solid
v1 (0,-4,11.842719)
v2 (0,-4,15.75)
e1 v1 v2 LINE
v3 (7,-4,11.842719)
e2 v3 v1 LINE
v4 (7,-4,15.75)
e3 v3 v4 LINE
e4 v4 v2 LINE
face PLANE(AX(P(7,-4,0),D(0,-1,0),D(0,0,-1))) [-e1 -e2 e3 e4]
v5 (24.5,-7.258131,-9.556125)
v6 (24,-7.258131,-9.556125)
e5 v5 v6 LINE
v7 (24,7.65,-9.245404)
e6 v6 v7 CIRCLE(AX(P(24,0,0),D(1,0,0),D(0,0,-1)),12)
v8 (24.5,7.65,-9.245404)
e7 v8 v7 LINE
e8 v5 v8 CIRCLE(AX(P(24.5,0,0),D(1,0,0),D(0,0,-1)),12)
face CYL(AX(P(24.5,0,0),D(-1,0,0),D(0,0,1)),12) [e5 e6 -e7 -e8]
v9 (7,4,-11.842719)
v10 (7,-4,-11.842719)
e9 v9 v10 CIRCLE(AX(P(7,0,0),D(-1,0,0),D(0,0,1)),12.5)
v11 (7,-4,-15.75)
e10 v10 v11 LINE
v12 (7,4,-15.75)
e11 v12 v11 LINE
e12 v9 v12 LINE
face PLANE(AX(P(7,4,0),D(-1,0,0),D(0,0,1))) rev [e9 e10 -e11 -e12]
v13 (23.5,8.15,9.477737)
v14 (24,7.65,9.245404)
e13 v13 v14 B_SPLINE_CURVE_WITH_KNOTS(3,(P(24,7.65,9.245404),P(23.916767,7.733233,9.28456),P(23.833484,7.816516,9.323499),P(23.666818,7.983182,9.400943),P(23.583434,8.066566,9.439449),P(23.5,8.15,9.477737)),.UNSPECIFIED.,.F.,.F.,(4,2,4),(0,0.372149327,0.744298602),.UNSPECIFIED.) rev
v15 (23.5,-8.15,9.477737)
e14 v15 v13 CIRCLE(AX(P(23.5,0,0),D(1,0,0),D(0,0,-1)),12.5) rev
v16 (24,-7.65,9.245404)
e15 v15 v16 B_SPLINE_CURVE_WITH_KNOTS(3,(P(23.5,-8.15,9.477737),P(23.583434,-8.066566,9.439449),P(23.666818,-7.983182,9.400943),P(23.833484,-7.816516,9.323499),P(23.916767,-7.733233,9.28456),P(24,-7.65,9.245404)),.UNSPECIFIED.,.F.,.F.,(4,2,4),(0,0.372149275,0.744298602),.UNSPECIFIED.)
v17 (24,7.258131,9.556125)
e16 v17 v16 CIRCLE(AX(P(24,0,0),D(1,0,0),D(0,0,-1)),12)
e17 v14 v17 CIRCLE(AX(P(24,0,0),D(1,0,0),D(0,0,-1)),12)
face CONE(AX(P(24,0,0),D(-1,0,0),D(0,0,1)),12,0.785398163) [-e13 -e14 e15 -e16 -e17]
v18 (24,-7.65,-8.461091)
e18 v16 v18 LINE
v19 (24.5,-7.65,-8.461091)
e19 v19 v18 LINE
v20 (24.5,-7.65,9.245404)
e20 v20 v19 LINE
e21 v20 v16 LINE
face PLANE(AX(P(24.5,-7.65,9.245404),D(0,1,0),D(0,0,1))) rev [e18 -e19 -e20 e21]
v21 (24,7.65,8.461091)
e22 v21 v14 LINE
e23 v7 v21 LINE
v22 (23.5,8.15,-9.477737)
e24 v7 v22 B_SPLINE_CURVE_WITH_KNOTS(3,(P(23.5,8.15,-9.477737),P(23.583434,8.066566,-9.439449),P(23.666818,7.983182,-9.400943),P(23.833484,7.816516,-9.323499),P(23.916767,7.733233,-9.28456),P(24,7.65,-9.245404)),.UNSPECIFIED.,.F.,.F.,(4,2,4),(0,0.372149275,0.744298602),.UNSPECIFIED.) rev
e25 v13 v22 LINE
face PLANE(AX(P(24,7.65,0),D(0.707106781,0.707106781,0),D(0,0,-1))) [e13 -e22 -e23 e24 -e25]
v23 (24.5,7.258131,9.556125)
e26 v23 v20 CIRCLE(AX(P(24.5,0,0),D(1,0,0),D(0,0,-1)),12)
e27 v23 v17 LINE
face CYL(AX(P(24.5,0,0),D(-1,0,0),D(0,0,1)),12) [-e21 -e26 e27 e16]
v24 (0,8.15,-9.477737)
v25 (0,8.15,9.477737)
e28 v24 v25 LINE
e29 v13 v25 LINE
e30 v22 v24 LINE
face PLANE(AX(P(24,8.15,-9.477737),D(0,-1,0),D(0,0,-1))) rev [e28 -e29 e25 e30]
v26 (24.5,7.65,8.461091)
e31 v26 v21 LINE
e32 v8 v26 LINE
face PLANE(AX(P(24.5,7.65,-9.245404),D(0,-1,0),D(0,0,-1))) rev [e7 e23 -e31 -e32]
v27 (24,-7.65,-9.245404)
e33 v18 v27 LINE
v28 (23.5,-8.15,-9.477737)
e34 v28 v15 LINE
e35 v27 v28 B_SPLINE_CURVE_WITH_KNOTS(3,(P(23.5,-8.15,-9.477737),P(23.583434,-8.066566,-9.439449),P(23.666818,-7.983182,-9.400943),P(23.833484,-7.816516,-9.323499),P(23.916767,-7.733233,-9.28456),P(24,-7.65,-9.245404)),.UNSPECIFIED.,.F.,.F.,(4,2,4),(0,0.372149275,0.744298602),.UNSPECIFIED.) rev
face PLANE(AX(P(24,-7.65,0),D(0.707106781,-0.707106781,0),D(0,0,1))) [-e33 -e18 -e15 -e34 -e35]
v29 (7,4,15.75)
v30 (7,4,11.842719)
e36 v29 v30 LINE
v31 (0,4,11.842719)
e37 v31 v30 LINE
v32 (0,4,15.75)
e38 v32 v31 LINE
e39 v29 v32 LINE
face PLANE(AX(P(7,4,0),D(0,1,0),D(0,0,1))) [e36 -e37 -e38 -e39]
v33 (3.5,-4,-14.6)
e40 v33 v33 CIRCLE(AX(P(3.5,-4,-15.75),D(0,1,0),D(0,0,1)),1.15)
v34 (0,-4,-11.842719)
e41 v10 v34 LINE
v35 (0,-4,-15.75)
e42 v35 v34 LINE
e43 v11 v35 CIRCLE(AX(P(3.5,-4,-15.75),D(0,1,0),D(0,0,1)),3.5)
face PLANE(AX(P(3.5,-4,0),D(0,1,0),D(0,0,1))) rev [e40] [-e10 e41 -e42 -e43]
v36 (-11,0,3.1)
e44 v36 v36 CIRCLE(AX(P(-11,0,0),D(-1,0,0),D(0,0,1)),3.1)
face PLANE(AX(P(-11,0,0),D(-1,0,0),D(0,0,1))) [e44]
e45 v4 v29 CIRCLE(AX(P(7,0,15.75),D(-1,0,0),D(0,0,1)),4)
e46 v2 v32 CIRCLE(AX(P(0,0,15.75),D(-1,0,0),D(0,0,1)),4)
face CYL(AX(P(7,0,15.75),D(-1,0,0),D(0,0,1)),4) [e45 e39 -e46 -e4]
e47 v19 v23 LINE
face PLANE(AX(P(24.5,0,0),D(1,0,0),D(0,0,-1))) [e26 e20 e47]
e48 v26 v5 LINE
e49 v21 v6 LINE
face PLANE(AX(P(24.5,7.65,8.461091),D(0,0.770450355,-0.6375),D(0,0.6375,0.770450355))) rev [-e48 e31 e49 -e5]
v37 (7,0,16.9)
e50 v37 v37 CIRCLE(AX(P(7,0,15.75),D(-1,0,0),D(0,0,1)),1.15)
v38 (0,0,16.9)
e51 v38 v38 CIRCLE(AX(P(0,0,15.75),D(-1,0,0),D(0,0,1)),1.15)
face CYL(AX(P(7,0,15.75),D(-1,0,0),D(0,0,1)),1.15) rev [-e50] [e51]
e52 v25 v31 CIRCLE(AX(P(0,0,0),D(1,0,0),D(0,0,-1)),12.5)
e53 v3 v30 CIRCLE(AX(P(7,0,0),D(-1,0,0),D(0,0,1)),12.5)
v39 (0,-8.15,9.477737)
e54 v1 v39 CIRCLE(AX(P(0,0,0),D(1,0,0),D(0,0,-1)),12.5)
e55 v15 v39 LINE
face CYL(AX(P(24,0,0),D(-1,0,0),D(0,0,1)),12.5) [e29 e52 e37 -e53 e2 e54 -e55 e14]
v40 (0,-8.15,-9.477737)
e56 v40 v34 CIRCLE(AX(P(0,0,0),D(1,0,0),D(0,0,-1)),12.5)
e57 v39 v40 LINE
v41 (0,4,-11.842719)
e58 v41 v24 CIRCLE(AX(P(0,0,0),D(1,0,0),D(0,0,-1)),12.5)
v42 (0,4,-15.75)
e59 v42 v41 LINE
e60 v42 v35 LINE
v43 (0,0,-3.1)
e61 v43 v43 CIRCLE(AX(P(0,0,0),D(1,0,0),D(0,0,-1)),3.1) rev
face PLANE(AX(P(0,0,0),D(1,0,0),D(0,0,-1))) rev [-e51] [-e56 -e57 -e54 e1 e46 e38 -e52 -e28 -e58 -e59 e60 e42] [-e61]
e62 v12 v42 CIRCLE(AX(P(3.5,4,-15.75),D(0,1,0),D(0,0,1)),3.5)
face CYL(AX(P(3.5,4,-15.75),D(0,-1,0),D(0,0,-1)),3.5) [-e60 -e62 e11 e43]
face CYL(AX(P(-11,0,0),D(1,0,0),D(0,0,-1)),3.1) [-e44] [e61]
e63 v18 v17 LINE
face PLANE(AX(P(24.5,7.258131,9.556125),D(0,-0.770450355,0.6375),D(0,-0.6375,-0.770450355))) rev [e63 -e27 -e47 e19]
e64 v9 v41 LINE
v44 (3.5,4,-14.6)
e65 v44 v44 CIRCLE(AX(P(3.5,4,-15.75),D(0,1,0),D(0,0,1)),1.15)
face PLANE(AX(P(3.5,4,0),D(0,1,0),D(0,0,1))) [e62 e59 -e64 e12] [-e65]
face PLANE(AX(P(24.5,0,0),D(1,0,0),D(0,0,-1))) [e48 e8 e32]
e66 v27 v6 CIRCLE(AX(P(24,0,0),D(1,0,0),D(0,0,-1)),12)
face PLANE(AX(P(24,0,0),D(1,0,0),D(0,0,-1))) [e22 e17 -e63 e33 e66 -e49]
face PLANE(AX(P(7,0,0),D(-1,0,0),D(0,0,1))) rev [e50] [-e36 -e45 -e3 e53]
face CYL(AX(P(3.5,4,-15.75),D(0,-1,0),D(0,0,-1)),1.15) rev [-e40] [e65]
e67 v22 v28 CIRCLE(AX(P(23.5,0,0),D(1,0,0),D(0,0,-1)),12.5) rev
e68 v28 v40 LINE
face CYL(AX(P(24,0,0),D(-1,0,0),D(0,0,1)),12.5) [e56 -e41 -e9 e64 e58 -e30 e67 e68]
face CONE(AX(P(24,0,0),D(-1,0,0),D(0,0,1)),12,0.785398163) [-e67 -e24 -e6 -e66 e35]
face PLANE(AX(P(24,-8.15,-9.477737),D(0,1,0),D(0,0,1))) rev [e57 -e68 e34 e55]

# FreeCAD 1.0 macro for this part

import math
import FreeCAD as App
import Part
import Sketcher
Q = App.Units.Quantity


def edges_at(feature, points):
    """Names of the edges that pass closest to the given points."""
    edges = feature.Shape.Edges
    near = lambda p: min(range(len(edges)), key=lambda i: edges[i].distToShape(Part.Vertex(*p))[0])
    return sorted({f"Edge{near(p) + 1}" for p in points})

doc = App.newDocument("Part")
body = doc.addObject("PartDesign::Body", "Body")

# Sketch on YZ plane
sketch1 = body.newObject("Sketcher::SketchObject", "Sketch")
sketch1.AttachmentSupport = (doc.getObject("YZ_Plane"), [""])
sketch1.MapMode = "FlatFace"
sketch1.addGeometry([
    Part.LineSegment(App.Vector(-8, 9, 0), App.Vector(-8, -9, 0)),
    Part.ArcOfCircle(Part.Circle(App.Vector(0, 0, 0), App.Vector(0, 0, 1), 13), math.radians(-131), math.radians(-49)),
    Part.LineSegment(App.Vector(8, -9, 0), App.Vector(8, 9, 0)),
    Part.ArcOfCircle(Part.Circle(App.Vector(0, 0, 0), App.Vector(0, 0, 1), 13), math.radians(49), math.radians(131)),
], False)
sketch1.addConstraint([
    Sketcher.Constraint("Coincident", 0, 2, 1, 1),
    Sketcher.Constraint("Coincident", 1, 2, 2, 1),
    Sketcher.Constraint("Coincident", 2, 2, 3, 1),
    Sketcher.Constraint("Coincident", 3, 2, 0, 1),
    Sketcher.Constraint("Vertical", 0),
    Sketcher.Constraint("Vertical", 2),
    Sketcher.Constraint("Coincident", 1, 3, -1, 1),
    Sketcher.Constraint("Coincident", 3, 3, -1, 1),
    Sketcher.Constraint("Equal", 1, 3),
    Sketcher.Constraint("Horizontal", 0, 2, 1, 2),
    Sketcher.Constraint("Radius", 1, Q("12.5 mm")),
    Sketcher.Constraint("DistanceX", 0, 2, 1, 2, Q("16.3 mm")),
])
pad1 = body.newObject("PartDesign::Pad", "Pad")
pad1.Profile = sketch1
pad1.Length = 24

# Sketch on YZ plane
sketch2 = body.newObject("Sketcher::SketchObject", "Sketch001")
sketch2.AttachmentSupport = (doc.getObject("YZ_Plane"), [""])
sketch2.MapMode = "FlatFace"
sketch2.addGeometry([
    Part.LineSegment(App.Vector(4, 15.8, 0), App.Vector(4, 0, 0)),  # 0
    Part.ArcOfCircle(Part.Circle(App.Vector(0, 0, 0), App.Vector(0, 0, 1), 4), math.radians(180), math.radians(360)),  # 1
    Part.LineSegment(App.Vector(-4, 0, 0), App.Vector(-4, 15.8, 0)),  # 2
    Part.ArcOfCircle(Part.Circle(App.Vector(0, 15.8, 0), App.Vector(0, 0, 1), 4), math.radians(0), math.radians(180)),  # 3
    Part.Circle(App.Vector(0, 15.8, 0), App.Vector(0, 0, 1), 1.1),  # 4
], False)
sketch2.addConstraint([
    Sketcher.Constraint("Tangent", 0, 2, 1, 2),
    Sketcher.Constraint("Tangent", 1, 1, 2, 1),
    Sketcher.Constraint("Tangent", 2, 2, 3, 2),
    Sketcher.Constraint("Tangent", 3, 1, 0, 1),
    Sketcher.Constraint("Vertical", 0),
    Sketcher.Constraint("Vertical", 2),
    Sketcher.Constraint("Coincident", 1, 3, -1, 1),
    Sketcher.Constraint("Coincident", 4, 3, 3, 3),
    Sketcher.Constraint("Radius", 1, Q("4 mm")),
    Sketcher.Constraint("Diameter", 4, Q("2.3 mm")),
    Sketcher.Constraint("DistanceY", 0, 2, 0, 1, Q("15.75 mm")),
])
pad2 = body.newObject("PartDesign::Pad", "Pad001")
pad2.Profile = sketch2
pad2.Length = 7

# Sketch on XZ plane
sketch3 = body.newObject("Sketcher::SketchObject", "Sketch002")
sketch3.AttachmentSupport = (doc.getObject("XZ_Plane"), [""])
sketch3.MapMode = "FlatFace"
sketch3.addGeometry([
    Part.LineSegment(App.Vector(0, -15.8, 0), App.Vector(0, 0, 0)),  # 0
    Part.ArcOfCircle(Part.Circle(App.Vector(3.5, 0, 0), App.Vector(0, 0, 1), 3.5), math.radians(0), math.radians(180)),  # 1
    Part.LineSegment(App.Vector(7, 0, 0), App.Vector(7, -15.8, 0)),  # 2
    Part.ArcOfCircle(Part.Circle(App.Vector(3.5, -15.8, 0), App.Vector(0, 0, 1), 3.5), math.radians(180), math.radians(360)),  # 3
    Part.Circle(App.Vector(3.5, -15.8, 0), App.Vector(0, 0, 1), 1.1),  # 4
], False)
sketch3.addConstraint([
    Sketcher.Constraint("Tangent", 0, 2, 1, 2),
    Sketcher.Constraint("Tangent", 1, 1, 2, 1),
    Sketcher.Constraint("Tangent", 2, 2, 3, 2),
    Sketcher.Constraint("Tangent", 3, 1, 0, 1),
    Sketcher.Constraint("Vertical", 0),
    Sketcher.Constraint("Vertical", 2),
    Sketcher.Constraint("Coincident", 0, 2, -1, 1),
    Sketcher.Constraint("Coincident", 4, 3, 3, 3),
    Sketcher.Constraint("Diameter", 4, Q("2.3 mm")),
    Sketcher.Constraint("Radius", 1, Q("3.5 mm")),
    Sketcher.Constraint("DistanceY", 0, 1, 0, 2, Q("15.75 mm")),
])
pad3 = body.newObject("PartDesign::Pad", "Pad002")
pad3.Profile = sketch3
pad3.Length = 8
pad3.Midplane = True

# Sketch on YZ plane
sketch4 = body.newObject("Sketcher::SketchObject", "Sketch003")
sketch4.AttachmentSupport = (doc.getObject("YZ_Plane"), [""])
sketch4.MapMode = "FlatFace"
sketch4.addGeometry(Part.Circle(App.Vector(0, 0, 0), App.Vector(0, 0, 1), 3.1), False)
sketch4.addConstraint([
    Sketcher.Constraint("Coincident", 0, 3, -1, 1),
    Sketcher.Constraint("Diameter", 0, Q("6.2 mm")),
])
pad4 = body.newObject("PartDesign::Pad", "Pad003")
pad4.Profile = sketch4
pad4.Length = 11
pad4.Reversed = True
doc.recompute()

chamfer = body.newObject("PartDesign::Chamfer", "Chamfer")
chamfer.Base = (pad4, edges_at(pad4, [
    (24, 0, -12.5),
    (24, 8.15, 0),
    (24, 0, 12.5),
    (24, -8.15, 0),
]))
chamfer.Size = 0.5

# Sketch on YZ plane
sketch5 = body.newObject("Sketcher::SketchObject", "Sketch004")
sketch5.AttachmentSupport = (doc.getObject("YZ_Plane"), [""])
sketch5.MapMode = "FlatFace"
sketch5.AttachmentOffset = App.Placement(App.Vector(0, 0, 24), App.Rotation())
sketch5.addGeometry([
    Part.LineSegment(App.Vector(-8, -8, 0), App.Vector(7, 10, 0)),  # 0
    Part.ArcOfCircle(Part.Circle(App.Vector(0, 0, 0), App.Vector(0, 0, 1), 12), math.radians(53), math.radians(130)),  # 1
    Part.LineSegment(App.Vector(-8, 9, 0), App.Vector(-8, -8, 0)),  # 2
    Part.LineSegment(App.Vector(8, -9, 0), App.Vector(8, 8, 0)),  # 3
    Part.LineSegment(App.Vector(8, 8, 0), App.Vector(-7, -10, 0)),  # 4
    Part.ArcOfCircle(Part.Circle(App.Vector(0, 0, 0), App.Vector(0, 0, 1), 12), math.radians(-127), math.radians(-50)),  # 5
], False)
sketch5.addConstraint([
    Sketcher.Constraint("Coincident", 0, 2, 1, 1),
    Sketcher.Constraint("Coincident", 1, 2, 2, 1),
    Sketcher.Constraint("Coincident", 2, 2, 0, 1),
    Sketcher.Constraint("Coincident", 3, 2, 4, 1),
    Sketcher.Constraint("Coincident", 4, 2, 5, 1),
    Sketcher.Constraint("Coincident", 5, 2, 3, 1),
    Sketcher.Constraint("Vertical", 2),
    Sketcher.Constraint("Vertical", 3),
    Sketcher.Constraint("Coincident", 1, 3, -1, 1),
    Sketcher.Constraint("Coincident", 5, 3, -1, 1),
    Sketcher.Constraint("Equal", 1, 5),
    Sketcher.Constraint("Symmetric", 2, 2, 3, 2, -1, 1),
    Sketcher.Constraint("Parallel", 0, 4),
    Sketcher.Constraint("Radius", 1, Q("12 mm")),
    Sketcher.Constraint("DistanceX", 1, 2, 3, 2, Q("15.3 mm")),
    Sketcher.Constraint("DistanceY", 2, 2, 2, 1, Q("17.706495 mm")),
    Sketcher.Constraint("DistanceX", -1, 1, 0, 2, Q("7.258131 mm")),
])
pad5 = body.newObject("PartDesign::Pad", "Pad004")
pad5.Profile = sketch5
pad5.Length = 0.5

doc.recompute()
